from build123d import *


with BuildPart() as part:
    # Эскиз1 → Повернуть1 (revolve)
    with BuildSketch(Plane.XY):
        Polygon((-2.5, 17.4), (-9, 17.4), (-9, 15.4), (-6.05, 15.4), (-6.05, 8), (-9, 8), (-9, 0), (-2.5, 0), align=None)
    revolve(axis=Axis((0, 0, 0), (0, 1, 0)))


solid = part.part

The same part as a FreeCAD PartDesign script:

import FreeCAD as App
import Part
import Sketcher
Q = App.Units.Quantity

doc = App.newDocument("Part")
body = doc.addObject("PartDesign::Body", "Body")

# Sketch on XY plane
sketch1 = body.newObject("Sketcher::SketchObject", "Sketch")
sketch1.AttachmentSupport = (doc.getObject("XY_Plane"), [""])
sketch1.MapMode = "FlatFace"
sketch1.addGeometry(Part.LineSegment(App.Vector(-2.5, 17.4, 0), App.Vector(-9, 17.4, 0)), False)
sketch1.addGeometry(Part.LineSegment(App.Vector(-9, 17.4, 0), App.Vector(-9, 15.4, 0)), False)
sketch1.addGeometry(Part.LineSegment(App.Vector(-9, 15.4, 0), App.Vector(-6.05, 15.4, 0)), False)
sketch1.addGeometry(Part.LineSegment(App.Vector(-6.05, 15.4, 0), App.Vector(-6.05, 8, 0)), False)
sketch1.addGeometry(Part.LineSegment(App.Vector(-6.05, 8, 0), App.Vector(-9, 8, 0)), False)
sketch1.addGeometry(Part.LineSegment(App.Vector(-9, 8, 0), App.Vector(-9, 0, 0)), False)
sketch1.addGeometry(Part.LineSegment(App.Vector(-9, 0, 0), App.Vector(-2.5, 0, 0)), False)
sketch1.addGeometry(Part.LineSegment(App.Vector(-2.5, 0, 0), App.Vector(-2.5, 17.4, 0)), False)
sketch1.addConstraint(Sketcher.Constraint("Coincident", 0, 2, 1, 1))
sketch1.addConstraint(Sketcher.Constraint("Coincident", 1, 2, 2, 1))
sketch1.addConstraint(Sketcher.Constraint("Coincident", 2, 2, 3, 1))
sketch1.addConstraint(Sketcher.Constraint("Coincident", 3, 2, 4, 1))
sketch1.addConstraint(Sketcher.Constraint("Coincident", 4, 2, 5, 1))
sketch1.addConstraint(Sketcher.Constraint("Coincident", 5, 2, 6, 1))
sketch1.addConstraint(Sketcher.Constraint("Coincident", 6, 2, 7, 1))
sketch1.addConstraint(Sketcher.Constraint("Coincident", 7, 2, 0, 1))
sketch1.addConstraint(Sketcher.Constraint("Horizontal", 0))
sketch1.addConstraint(Sketcher.Constraint("Vertical", 1))
sketch1.addConstraint(Sketcher.Constraint("Horizontal", 2))
sketch1.addConstraint(Sketcher.Constraint("Vertical", 3))
sketch1.addConstraint(Sketcher.Constraint("Horizontal", 4))
sketch1.addConstraint(Sketcher.Constraint("Vertical", 5))
sketch1.addConstraint(Sketcher.Constraint("Horizontal", 6))
sketch1.addConstraint(Sketcher.Constraint("Vertical", 7))
sketch1.addConstraint(Sketcher.Constraint("PointOnObject", 5, 2, -1))
sketch1.addConstraint(Sketcher.Constraint("Vertical", 1, 2, 4, 2))
sketch1.addConstraint(Sketcher.Constraint("DistanceY", 1, 2, 1, 1, Q("2 mm")))
sketch1.addConstraint(Sketcher.Constraint("DistanceY", 5, 2, 5, 1, Q("8 mm")))
sketch1.addConstraint(Sketcher.Constraint("DistanceX", 0, 2, 0, 1, Q("6.5 mm")))
sketch1.addConstraint(Sketcher.Constraint("DistanceY", 3, 2, 3, 1, Q("7.4 mm")))
sketch1.addConstraint(Sketcher.Constraint("DistanceX", 0, 2, -1, 1, Q("9 mm")))
sketch1.addConstraint(Sketcher.Constraint("DistanceX", 2, 1, 2, 2, Q("2.95 mm")))
revolution = body.newObject("PartDesign::Revolution", "Revolution")
revolution.Profile = sketch1
revolution.ReferenceAxis = (sketch1, ["V_Axis"])
revolution.Angle = 360

doc.recompute()
